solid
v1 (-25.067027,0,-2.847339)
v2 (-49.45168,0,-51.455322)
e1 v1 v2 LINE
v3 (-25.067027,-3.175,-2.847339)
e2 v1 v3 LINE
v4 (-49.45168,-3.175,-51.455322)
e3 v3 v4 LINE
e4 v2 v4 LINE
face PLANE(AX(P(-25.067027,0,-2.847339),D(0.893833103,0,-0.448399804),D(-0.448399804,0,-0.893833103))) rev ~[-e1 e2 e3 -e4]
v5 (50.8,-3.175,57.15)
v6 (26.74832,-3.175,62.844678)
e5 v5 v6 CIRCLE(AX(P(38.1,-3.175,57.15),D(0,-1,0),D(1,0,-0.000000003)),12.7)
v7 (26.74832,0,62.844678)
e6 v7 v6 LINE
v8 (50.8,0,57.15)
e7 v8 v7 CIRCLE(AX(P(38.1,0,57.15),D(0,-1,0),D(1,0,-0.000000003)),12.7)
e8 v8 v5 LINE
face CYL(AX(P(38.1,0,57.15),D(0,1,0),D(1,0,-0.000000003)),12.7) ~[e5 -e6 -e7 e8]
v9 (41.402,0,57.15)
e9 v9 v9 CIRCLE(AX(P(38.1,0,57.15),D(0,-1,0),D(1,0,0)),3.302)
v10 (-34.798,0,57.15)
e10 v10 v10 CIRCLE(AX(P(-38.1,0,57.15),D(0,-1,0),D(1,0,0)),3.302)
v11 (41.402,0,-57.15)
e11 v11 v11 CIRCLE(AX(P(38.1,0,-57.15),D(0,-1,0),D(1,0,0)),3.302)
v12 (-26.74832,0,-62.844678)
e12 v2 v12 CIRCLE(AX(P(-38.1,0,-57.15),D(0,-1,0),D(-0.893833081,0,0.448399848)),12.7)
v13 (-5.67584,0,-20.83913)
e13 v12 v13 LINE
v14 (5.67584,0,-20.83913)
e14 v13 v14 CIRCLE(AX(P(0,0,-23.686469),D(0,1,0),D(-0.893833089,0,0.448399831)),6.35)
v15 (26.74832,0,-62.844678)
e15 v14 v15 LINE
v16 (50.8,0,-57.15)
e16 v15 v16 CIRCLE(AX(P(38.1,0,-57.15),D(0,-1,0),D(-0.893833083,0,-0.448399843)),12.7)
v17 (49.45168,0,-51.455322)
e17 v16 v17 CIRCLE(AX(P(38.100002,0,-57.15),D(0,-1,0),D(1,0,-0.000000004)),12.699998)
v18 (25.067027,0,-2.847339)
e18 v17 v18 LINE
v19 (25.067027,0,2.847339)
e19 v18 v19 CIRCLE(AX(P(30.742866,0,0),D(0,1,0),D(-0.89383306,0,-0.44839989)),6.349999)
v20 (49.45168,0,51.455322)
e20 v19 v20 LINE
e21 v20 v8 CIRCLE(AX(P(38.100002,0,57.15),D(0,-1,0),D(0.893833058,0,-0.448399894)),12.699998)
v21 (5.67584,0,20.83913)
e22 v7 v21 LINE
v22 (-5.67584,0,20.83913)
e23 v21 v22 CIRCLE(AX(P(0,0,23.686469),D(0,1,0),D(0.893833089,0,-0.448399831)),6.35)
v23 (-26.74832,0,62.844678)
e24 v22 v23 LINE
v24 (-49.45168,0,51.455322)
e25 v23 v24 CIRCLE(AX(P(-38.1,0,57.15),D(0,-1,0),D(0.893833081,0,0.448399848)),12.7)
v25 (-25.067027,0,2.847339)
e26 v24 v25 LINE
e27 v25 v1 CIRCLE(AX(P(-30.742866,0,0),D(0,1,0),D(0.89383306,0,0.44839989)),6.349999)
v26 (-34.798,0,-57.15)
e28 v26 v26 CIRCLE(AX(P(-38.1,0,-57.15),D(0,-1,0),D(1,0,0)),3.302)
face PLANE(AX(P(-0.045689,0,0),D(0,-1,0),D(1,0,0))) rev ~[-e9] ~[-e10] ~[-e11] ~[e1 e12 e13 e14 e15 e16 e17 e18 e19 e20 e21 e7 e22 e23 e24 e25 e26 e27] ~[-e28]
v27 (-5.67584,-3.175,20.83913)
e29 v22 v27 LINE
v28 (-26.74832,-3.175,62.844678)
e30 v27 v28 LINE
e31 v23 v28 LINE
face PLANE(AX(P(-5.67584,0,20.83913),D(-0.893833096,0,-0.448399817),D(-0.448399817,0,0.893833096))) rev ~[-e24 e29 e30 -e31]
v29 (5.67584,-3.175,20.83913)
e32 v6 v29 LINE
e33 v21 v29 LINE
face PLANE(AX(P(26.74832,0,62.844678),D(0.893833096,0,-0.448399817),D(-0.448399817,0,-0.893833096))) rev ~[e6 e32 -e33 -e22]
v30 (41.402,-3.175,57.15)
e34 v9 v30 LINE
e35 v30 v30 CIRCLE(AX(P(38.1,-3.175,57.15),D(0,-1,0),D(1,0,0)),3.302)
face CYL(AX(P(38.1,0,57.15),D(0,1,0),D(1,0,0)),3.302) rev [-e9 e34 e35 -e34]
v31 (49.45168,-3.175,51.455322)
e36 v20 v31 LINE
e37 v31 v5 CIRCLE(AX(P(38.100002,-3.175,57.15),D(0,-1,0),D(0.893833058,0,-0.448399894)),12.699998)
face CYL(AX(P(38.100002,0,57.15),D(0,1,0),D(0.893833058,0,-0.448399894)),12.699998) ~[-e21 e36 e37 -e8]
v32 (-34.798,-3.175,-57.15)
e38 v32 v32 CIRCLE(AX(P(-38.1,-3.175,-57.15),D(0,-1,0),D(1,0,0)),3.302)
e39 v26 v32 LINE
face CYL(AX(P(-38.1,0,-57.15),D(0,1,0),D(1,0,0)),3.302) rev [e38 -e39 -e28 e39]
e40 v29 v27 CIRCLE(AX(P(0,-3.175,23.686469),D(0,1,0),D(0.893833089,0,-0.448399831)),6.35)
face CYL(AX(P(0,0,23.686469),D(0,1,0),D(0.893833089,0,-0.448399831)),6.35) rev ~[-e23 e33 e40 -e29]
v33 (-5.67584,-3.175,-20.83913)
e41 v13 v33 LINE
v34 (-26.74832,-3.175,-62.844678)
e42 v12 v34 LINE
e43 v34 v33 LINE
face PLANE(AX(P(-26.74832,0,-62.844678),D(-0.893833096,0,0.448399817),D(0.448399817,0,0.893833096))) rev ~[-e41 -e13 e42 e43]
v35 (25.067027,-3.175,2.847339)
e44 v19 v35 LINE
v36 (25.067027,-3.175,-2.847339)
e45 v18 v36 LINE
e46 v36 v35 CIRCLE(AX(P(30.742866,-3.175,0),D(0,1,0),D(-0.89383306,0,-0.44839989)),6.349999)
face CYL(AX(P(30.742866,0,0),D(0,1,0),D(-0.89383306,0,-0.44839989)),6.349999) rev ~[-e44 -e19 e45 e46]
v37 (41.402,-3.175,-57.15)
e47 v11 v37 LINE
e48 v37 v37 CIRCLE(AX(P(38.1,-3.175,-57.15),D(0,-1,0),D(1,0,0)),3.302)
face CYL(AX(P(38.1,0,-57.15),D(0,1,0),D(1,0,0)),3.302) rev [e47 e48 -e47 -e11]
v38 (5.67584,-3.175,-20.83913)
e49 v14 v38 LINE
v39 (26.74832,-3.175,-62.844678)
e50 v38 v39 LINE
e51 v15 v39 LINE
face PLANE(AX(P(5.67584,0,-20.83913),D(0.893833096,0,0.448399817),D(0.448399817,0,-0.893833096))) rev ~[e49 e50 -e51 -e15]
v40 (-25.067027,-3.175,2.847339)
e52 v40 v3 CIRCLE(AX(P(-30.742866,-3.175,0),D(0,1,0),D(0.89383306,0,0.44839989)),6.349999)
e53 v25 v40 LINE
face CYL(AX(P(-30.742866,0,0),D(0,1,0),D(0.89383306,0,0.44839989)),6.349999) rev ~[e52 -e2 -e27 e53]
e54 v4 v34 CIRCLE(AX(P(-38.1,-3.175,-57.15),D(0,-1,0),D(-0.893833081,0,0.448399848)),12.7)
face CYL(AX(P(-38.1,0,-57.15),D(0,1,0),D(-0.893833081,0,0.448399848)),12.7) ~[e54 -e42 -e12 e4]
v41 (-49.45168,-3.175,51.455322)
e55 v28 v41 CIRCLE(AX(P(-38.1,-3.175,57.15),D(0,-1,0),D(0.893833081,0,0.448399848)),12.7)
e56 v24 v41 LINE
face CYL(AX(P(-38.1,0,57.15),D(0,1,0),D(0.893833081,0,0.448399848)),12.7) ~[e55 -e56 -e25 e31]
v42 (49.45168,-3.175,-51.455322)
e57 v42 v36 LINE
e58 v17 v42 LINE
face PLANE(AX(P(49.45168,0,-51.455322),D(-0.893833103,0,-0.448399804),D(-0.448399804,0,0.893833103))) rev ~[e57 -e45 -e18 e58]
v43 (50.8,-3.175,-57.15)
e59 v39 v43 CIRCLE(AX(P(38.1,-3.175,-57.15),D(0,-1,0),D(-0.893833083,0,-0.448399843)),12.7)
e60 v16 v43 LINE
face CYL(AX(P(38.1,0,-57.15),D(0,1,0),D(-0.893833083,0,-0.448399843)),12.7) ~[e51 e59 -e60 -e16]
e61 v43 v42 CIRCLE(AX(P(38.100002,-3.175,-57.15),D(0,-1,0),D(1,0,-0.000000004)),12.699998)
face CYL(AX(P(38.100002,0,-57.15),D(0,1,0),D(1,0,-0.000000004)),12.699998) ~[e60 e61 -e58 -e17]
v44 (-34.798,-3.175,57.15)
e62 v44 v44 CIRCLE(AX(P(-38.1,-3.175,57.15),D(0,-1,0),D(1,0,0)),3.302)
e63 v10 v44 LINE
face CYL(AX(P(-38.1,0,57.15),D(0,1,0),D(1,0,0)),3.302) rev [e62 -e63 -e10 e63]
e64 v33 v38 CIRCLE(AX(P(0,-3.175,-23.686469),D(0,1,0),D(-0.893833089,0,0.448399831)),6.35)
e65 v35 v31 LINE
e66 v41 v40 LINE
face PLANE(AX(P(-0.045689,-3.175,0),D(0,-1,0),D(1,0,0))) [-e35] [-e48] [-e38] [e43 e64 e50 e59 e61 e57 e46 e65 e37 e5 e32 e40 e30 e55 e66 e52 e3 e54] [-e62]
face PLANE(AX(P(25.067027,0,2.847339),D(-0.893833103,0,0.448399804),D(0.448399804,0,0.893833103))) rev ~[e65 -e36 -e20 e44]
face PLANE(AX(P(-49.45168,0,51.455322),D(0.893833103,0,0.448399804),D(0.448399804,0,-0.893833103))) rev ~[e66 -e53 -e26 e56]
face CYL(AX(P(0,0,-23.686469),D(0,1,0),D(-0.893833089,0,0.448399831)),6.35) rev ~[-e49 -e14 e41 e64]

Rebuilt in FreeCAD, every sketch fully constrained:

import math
import FreeCAD as App
import Part
import Sketcher
Q = App.Units.Quantity

doc = App.newDocument("Part")
body = doc.addObject("PartDesign::Body", "Body")

# Sketch on XZ plane
sketch1 = doc.addObject("Sketcher::SketchObject", "Sketch")
body.addObject(sketch1)
sketch1.AttachmentSupport = (doc.XZ_Plane, [""])
sketch1.MapMode = "FlatFace"
sketch1.addGeometry([
    Part.LineSegment(App.Vector(-49.45168, 51.455322, 0), App.Vector(-25.067027, 2.847339, 0)),  # 0
    Part.ArcOfCircle(Part.Circle(App.Vector(-30.742866, 0, 0), App.Vector(0, 0, 1), 6.349999), math.radians(-26.641069), math.radians(26.641069)),  # 1
    Part.LineSegment(App.Vector(-25.067027, -2.847339, 0), App.Vector(-49.45168, -51.455322, 0)),  # 2
    Part.ArcOfCircle(Part.Circle(App.Vector(-38.1, -57.15, 0), App.Vector(0, 0, 1), 12.7), math.radians(153.358934), math.radians(333.358934)),  # 3
    Part.LineSegment(App.Vector(-26.74832, -62.844678, 0), App.Vector(-5.67584, -20.83913, 0)),  # 4
    Part.ArcOfCircle(Part.Circle(App.Vector(0, -23.686469, 0), App.Vector(0, 0, 1), 6.35), math.radians(26.641065), math.radians(153.358935)),  # 5
    Part.LineSegment(App.Vector(5.67584, -20.83913, 0), App.Vector(26.74832, -62.844678, 0)),  # 6
    Part.ArcOfCircle(Part.Circle(App.Vector(38.1, -57.15, 0), App.Vector(0, 0, 1), 12.7), math.radians(-153.358934), math.radians(0)),  # 7
    Part.ArcOfCircle(Part.Circle(App.Vector(38.100002, -57.15, 0), App.Vector(0, 0, 1), 12.699998), math.radians(0), math.radians(26.641069)),  # 8
    Part.LineSegment(App.Vector(49.45168, -51.455322, 0), App.Vector(25.067027, -2.847339, 0)),  # 9
    Part.ArcOfCircle(Part.Circle(App.Vector(30.742866, 0, 0), App.Vector(0, 0, 1), 6.349999), math.radians(153.358931), math.radians(206.641069)),  # 10
    Part.LineSegment(App.Vector(25.067027, 2.847339, 0), App.Vector(49.45168, 51.455322, 0)),  # 11
    Part.ArcOfCircle(Part.Circle(App.Vector(38.100002, 57.15, 0), App.Vector(0, 0, 1), 12.699998), math.radians(-26.641069), math.radians(0)),  # 12
    Part.ArcOfCircle(Part.Circle(App.Vector(38.1, 57.15, 0), App.Vector(0, 0, 1), 12.7), math.radians(0), math.radians(153.358934)),  # 13
    Part.LineSegment(App.Vector(26.74832, 62.844678, 0), App.Vector(5.67584, 20.83913, 0)),  # 14
    Part.ArcOfCircle(Part.Circle(App.Vector(0, 23.686469, 0), App.Vector(0, 0, 1), 6.35), math.radians(-153.358935), math.radians(-26.641065)),  # 15
    Part.LineSegment(App.Vector(-5.67584, 20.83913, 0), App.Vector(-26.74832, 62.844678, 0)),  # 16
    Part.ArcOfCircle(Part.Circle(App.Vector(-38.1, 57.15, 0), App.Vector(0, 0, 1), 12.7), math.radians(26.641066), math.radians(206.641066)),  # 17
    Part.Circle(App.Vector(-38.1, -57.15, 0), App.Vector(0, 0, 1), 3.302),  # 18
    Part.Circle(App.Vector(38.1, -57.15, 0), App.Vector(0, 0, 1), 3.302),  # 19
    Part.Circle(App.Vector(-38.1, 57.15, 0), App.Vector(0, 0, 1), 3.302),  # 20
    Part.Circle(App.Vector(38.1, 57.15, 0), App.Vector(0, 0, 1), 3.302),  # 21
], False)
sketch1.addConstraint([
    Sketcher.Constraint("Coincident", 0, 2, 1, 2),
    Sketcher.Constraint("Coincident", 1, 1, 2, 1),
    Sketcher.Constraint("Coincident", 2, 2, 3, 1),
    Sketcher.Constraint("Coincident", 3, 2, 4, 1),
    Sketcher.Constraint("Coincident", 4, 2, 5, 2),
    Sketcher.Constraint("Coincident", 5, 1, 6, 1),
    Sketcher.Constraint("Coincident", 6, 2, 7, 1),
    Sketcher.Constraint("Coincident", 7, 2, 8, 1),
    Sketcher.Constraint("Coincident", 8, 2, 9, 1),
    Sketcher.Constraint("Coincident", 9, 2, 10, 2),
    Sketcher.Constraint("Coincident", 10, 1, 11, 1),
    Sketcher.Constraint("Coincident", 11, 2, 12, 1),
    Sketcher.Constraint("Coincident", 12, 2, 13, 1),
    Sketcher.Constraint("Coincident", 13, 2, 14, 1),
    Sketcher.Constraint("Coincident", 14, 2, 15, 2),
    Sketcher.Constraint("Coincident", 15, 1, 16, 1),
    Sketcher.Constraint("Coincident", 16, 2, 17, 1),
    Sketcher.Constraint("Coincident", 17, 2, 0, 1),
    Sketcher.Constraint("Coincident", 8, 3, 7, 3),
    Sketcher.Constraint("Coincident", 13, 3, 12, 3),
    Sketcher.Constraint("Coincident", 18, 3, 3, 3),
    Sketcher.Constraint("Coincident", 19, 3, 7, 3),
    Sketcher.Constraint("Coincident", 20, 3, 17, 3),
    Sketcher.Constraint("Coincident", 21, 3, 12, 3),
    Sketcher.Constraint("PointOnObject", 1, 3, -1),
    Sketcher.Constraint("PointOnObject", 5, 3, -2),
    Sketcher.Constraint("PointOnObject", 10, 3, -1),
    Sketcher.Constraint("PointOnObject", 15, 3, -2),
    Sketcher.Constraint("Radius", 3, Q("0.5 in")),
    Sketcher.Constraint("Radius", 7, Q("0.5 in")),
    Sketcher.Constraint("Radius", 12, Q("0.4999999 in")),
    Sketcher.Constraint("Radius", 17, Q("0.5 in")),
    Sketcher.Constraint("Diameter", 18, Q("0.26 in")),
    Sketcher.Constraint("Diameter", 19, Q("0.26 in")),
    Sketcher.Constraint("Diameter", 20, Q("0.26 in")),
    Sketcher.Constraint("Diameter", 21, Q("0.26 in")),
    Sketcher.Constraint("Radius", 1, Q("0.25 in")),
    Sketcher.Constraint("Radius", 5, Q("0.25 in")),
    Sketcher.Constraint("Radius", 10, Q("0.25 in")),
    Sketcher.Constraint("Radius", 15, Q("0.25 in")),
    Sketcher.Constraint("DistanceX", -1, 1, 7, 2, Q("2 in")),
    Sketcher.Constraint("DistanceX", -1, 1, 12, 2, Q("2 in")),
    Sketcher.Constraint("DistanceX", 3, 3, 7, 3, Q("3 in")),
    Sketcher.Constraint("DistanceX", 17, 3, 13, 3, Q("3 in")),
    Sketcher.Constraint("DistanceY", 8, 3, 12, 3, Q("4.5 in")),
    Sketcher.Constraint("DistanceY", 3, 3, -1, 1, Q("2.25 in")),
    Sketcher.Constraint("DistanceY", 7, 3, -1, 1, Q("2.25 in")),
    Sketcher.Constraint("DistanceY", -1, 1, 17, 3, Q("2.25 in")),
    Sketcher.Constraint("DistanceY", 7, 2, -1, 1, Q("2.25 in")),
    Sketcher.Constraint("DistanceY", -1, 1, 12, 2, Q("2.25 in")),
    Sketcher.Constraint("DistanceY", -1, 1, 0, 2, Q("0.1121 in")),
    Sketcher.Constraint("DistanceY", 1, 1, -1, 1, Q("0.1121 in")),
    Sketcher.Constraint("DistanceY", 2, 2, -1, 1, Q("2.0258001 in")),
    Sketcher.Constraint("DistanceY", 3, 2, -1, 1, Q("2.4741999 in")),
    Sketcher.Constraint("DistanceY", 6, 2, -1, 1, Q("2.4741999 in")),
    Sketcher.Constraint("DistanceY", 8, 2, -1, 1, Q("2.0258001 in")),
    Sketcher.Constraint("DistanceY", 9, 2, -1, 1, Q("0.1121 in")),
    Sketcher.Constraint("DistanceY", -1, 1, 10, 1, Q("0.1121 in")),
    Sketcher.Constraint("DistanceY", -1, 1, 11, 2, Q("2.0258001 in")),
    Sketcher.Constraint("DistanceY", -1, 1, 13, 2, Q("2.4741999 in")),
    Sketcher.Constraint("DistanceY", -1, 1, 16, 2, Q("2.4741999 in")),
    Sketcher.Constraint("DistanceY", -1, 1, 17, 2, Q("2.0258001 in")),
    Sketcher.Constraint("DistanceY", 5, 3, 4, 2, Q("0.1121 in")),
    Sketcher.Constraint("DistanceY", 5, 3, 5, 1, Q("0.1121 in")),
    Sketcher.Constraint("DistanceY", 14, 2, 15, 3, Q("0.1121 in")),
    Sketcher.Constraint("DistanceY", 15, 1, 15, 3, Q("0.1121 in")),
    Sketcher.Constraint("DistanceY", 5, 3, -1, 1, 23.686469),
    Sketcher.Constraint("DistanceY", -1, 1, 15, 3, 23.686469),
    Sketcher.Constraint("Distance", 0, 54.381498),
    Sketcher.Constraint("Distance", 9, 54.381498),
])
pad1 = doc.addObject("PartDesign::Pad", "Pad")
body.addObject(pad1)
pad1.Profile = sketch1
pad1.Length = Q("0.125 in")

doc.recompute()
